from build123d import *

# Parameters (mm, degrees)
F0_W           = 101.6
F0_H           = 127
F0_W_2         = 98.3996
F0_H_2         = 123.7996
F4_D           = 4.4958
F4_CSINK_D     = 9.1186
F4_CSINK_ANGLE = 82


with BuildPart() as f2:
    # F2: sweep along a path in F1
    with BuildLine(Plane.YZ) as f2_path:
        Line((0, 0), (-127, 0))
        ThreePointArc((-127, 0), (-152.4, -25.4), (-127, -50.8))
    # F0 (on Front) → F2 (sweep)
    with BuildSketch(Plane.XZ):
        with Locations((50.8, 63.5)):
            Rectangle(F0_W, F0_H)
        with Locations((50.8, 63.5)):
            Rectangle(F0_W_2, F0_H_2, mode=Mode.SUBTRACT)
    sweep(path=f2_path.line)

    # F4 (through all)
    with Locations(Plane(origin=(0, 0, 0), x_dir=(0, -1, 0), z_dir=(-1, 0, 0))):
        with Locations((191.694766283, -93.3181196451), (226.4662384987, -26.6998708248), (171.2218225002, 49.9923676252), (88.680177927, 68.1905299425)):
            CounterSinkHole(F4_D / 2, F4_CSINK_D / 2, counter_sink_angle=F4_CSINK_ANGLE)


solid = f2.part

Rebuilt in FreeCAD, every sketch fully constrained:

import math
import FreeCAD as App
import Part
import Sketcher
from FreeCAD import Vector
Q = App.Units.Quantity

doc = App.newDocument("Part")
params = doc.addObject("Spreadsheet::Sheet", "Params")
for row, (alias, value) in enumerate([
    ("sketch1_width", "4 in"),
    ("sketch1_height", "5 in"),
    ("sketch1_width2", "3.874 in"),
    ("sketch1_height2", "4.874 in"),
    ("sketch2_radius", "1 in"),
    ("sketch2_width", "5 in"),
    ("sketch3_diameter", "0.177 in"),
    ("hole_diameter", "0.177 in"),
    ("hole_csink_diameter", "0.359 in"),
], start=1):
    params.set(f"A{row}", alias)
    params.set(f"B{row}", "=" + value)
    params.setAlias(f"B{row}", alias)

body = doc.addObject("PartDesign::Body", "Body")

sketch1 = body.newObject("Sketcher::SketchObject", "Sketch")
sketch1.AttachmentSupport = (doc.getObject("XZ_Plane"), [""])
sketch1.MapMode = "FlatFace"
sketch1.addGeometry([
    Part.LineSegment(Vector(0, 127, 0), Vector(0, 0, 0)),
    Part.LineSegment(Vector(0, 0, 0), Vector(102, 0, 0)),
    Part.LineSegment(Vector(102, 0, 0), Vector(102, 127, 0)),
    Part.LineSegment(Vector(102, 127, 0), Vector(0, 127, 0)),
    Part.LineSegment(Vector(100, 2, 0), Vector(2, 2, 0)),
    Part.LineSegment(Vector(2, 2, 0), Vector(2, 125, 0)),
    Part.LineSegment(Vector(2, 125, 0), Vector(100, 125, 0)),
    Part.LineSegment(Vector(100, 125, 0), Vector(100, 2, 0)),
], False)
sketch1.addConstraint([
    Sketcher.Constraint("Coincident", 0, 2, 1, 1),
    Sketcher.Constraint("Coincident", 1, 2, 2, 1),
    Sketcher.Constraint("Coincident", 2, 2, 3, 1),
    Sketcher.Constraint("Coincident", 3, 2, 0, 1),
    Sketcher.Constraint("Coincident", 4, 2, 5, 1),
    Sketcher.Constraint("Coincident", 5, 2, 6, 1),
    Sketcher.Constraint("Coincident", 6, 2, 7, 1),
    Sketcher.Constraint("Coincident", 7, 2, 4, 1),
    Sketcher.Constraint("Vertical", 0),
    Sketcher.Constraint("Horizontal", 1),
    Sketcher.Constraint("Vertical", 2),
    Sketcher.Constraint("Horizontal", 3),
    Sketcher.Constraint("Horizontal", 4),
    Sketcher.Constraint("Vertical", 5),
    Sketcher.Constraint("Horizontal", 6),
    Sketcher.Constraint("Vertical", 7),
    Sketcher.Constraint("Coincident", 0, 2, -1, 1),
    Sketcher.Constraint("DistanceX", 1, 1, 1, 2, Q("4 in")),
    Sketcher.Constraint("DistanceY", 0, 2, 0, 1, Q("5 in")),
    Sketcher.Constraint("DistanceX", 4, 2, 4, 1, Q("3.874 in")),
    Sketcher.Constraint("DistanceY", 5, 1, 5, 2, Q("4.874 in")),
    Sketcher.Constraint("DistanceX", -1, 1, 4, 2, Q("0.063 in")),
    Sketcher.Constraint("DistanceY", -1, 1, 4, 2, Q("0.063 in")),
])
sketch1.setExpression("Constraints[17]", "Params.sketch1_width")
sketch1.setExpression("Constraints[18]", "Params.sketch1_height")
sketch1.setExpression("Constraints[19]", "Params.sketch1_width2")
sketch1.setExpression("Constraints[20]", "Params.sketch1_height2")

sketch2 = body.newObject("Sketcher::SketchObject", "Sketch001")
sketch2.AttachmentSupport = (doc.getObject("YZ_Plane"), [""])
sketch2.MapMode = "FlatFace"
sketch2.addGeometry([
    Part.LineSegment(Vector(0, 0, 0), Vector(-127, 0, 0)),
    Part.ArcOfCircle(Part.Circle(Vector(-127, -25, 0), Vector(0, 0, 1), 25), math.radians(90), math.radians(270)),
], False)
sketch2.addConstraint([
    Sketcher.Constraint("Tangent", 0, 2, 1, 1),
    Sketcher.Constraint("Horizontal", 0),
    Sketcher.Constraint("Coincident", 0, 1, -1, 1),
    Sketcher.Constraint("Vertical", 0, 2, 1, 2),
    Sketcher.Constraint("Radius", 1, Q("1 in")),
    Sketcher.Constraint("DistanceX", 0, 2, 0, 1, Q("5 in")),
])
sketch2.setExpression("Constraints[4]", "Params.sketch2_radius")
sketch2.setExpression("Constraints[5]", "Params.sketch2_width")
doc.recompute()

additivepipe = body.newObject("PartDesign::AdditivePipe", "AdditivePipe")
additivepipe.Profile = sketch1
additivepipe.Spine = (sketch2, ["Edge1", "Edge2"])

sketch3 = body.newObject("Sketcher::SketchObject", "Sketch002")
sketch3.AttachmentSupport = (doc.getObject("YZ_Plane"), [""])
sketch3.MapMode = "FlatFace"
sketch3.addGeometry([
    Part.Circle(Vector(-191.7, -93.3, 0), Vector(0, 0, 1), 2.2),
    Part.Circle(Vector(-226.5, -26.7, 0), Vector(0, 0, 1), 2.2),
    Part.Circle(Vector(-171.2, 50, 0), Vector(0, 0, 1), 2.2),
    Part.Circle(Vector(-88.7, 68.2, 0), Vector(0, 0, 1), 2.2),
], False)
sketch3.addConstraint([
    Sketcher.Constraint("Equal", 0, 1),
    Sketcher.Constraint("Equal", 1, 2),
    Sketcher.Constraint("Equal", 2, 3),
    Sketcher.Constraint("Diameter", 0, Q("0.177 in")),
    Sketcher.Constraint("DistanceY", 1, 3, 3, 3, Q("94.890401 mm")),
    Sketcher.Constraint("DistanceY", 0, 3, -1, 1, Q("93.31812 mm")),
    Sketcher.Constraint("DistanceX", 1, 3, -1, 1, Q("226.466238 mm")),
    Sketcher.Constraint("DistanceY", 1, 3, -1, 1, Q("26.699871 mm")),
    Sketcher.Constraint("DistanceY", 1, 3, 2, 3, Q("76.692238 mm")),
    Sketcher.Constraint("DistanceX", 1, 3, 3, 3, Q("137.786061 mm")),
    Sketcher.Constraint("DistanceX", 0, 3, 3, 3, Q("103.014588 mm")),
    Sketcher.Constraint("DistanceX", 2, 3, -1, 1, Q("171.221823 mm")),
])
sketch3.setExpression("Constraints[3]", "Params.sketch3_diameter")
doc.recompute()
hole = body.newObject("PartDesign::Hole", "Hole")
hole.Profile = sketch3
hole.ThreadType = "None"
hole.setExpression("Diameter", "Params.hole_diameter")
hole.DepthType = "ThroughAll"
hole.HoleCutType = "Countersink"
hole.setExpression("HoleCutDiameter", "Params.hole_csink_diameter")
hole.HoleCutCountersinkAngle = 82
hole.Reversed = True

doc.recompute()
